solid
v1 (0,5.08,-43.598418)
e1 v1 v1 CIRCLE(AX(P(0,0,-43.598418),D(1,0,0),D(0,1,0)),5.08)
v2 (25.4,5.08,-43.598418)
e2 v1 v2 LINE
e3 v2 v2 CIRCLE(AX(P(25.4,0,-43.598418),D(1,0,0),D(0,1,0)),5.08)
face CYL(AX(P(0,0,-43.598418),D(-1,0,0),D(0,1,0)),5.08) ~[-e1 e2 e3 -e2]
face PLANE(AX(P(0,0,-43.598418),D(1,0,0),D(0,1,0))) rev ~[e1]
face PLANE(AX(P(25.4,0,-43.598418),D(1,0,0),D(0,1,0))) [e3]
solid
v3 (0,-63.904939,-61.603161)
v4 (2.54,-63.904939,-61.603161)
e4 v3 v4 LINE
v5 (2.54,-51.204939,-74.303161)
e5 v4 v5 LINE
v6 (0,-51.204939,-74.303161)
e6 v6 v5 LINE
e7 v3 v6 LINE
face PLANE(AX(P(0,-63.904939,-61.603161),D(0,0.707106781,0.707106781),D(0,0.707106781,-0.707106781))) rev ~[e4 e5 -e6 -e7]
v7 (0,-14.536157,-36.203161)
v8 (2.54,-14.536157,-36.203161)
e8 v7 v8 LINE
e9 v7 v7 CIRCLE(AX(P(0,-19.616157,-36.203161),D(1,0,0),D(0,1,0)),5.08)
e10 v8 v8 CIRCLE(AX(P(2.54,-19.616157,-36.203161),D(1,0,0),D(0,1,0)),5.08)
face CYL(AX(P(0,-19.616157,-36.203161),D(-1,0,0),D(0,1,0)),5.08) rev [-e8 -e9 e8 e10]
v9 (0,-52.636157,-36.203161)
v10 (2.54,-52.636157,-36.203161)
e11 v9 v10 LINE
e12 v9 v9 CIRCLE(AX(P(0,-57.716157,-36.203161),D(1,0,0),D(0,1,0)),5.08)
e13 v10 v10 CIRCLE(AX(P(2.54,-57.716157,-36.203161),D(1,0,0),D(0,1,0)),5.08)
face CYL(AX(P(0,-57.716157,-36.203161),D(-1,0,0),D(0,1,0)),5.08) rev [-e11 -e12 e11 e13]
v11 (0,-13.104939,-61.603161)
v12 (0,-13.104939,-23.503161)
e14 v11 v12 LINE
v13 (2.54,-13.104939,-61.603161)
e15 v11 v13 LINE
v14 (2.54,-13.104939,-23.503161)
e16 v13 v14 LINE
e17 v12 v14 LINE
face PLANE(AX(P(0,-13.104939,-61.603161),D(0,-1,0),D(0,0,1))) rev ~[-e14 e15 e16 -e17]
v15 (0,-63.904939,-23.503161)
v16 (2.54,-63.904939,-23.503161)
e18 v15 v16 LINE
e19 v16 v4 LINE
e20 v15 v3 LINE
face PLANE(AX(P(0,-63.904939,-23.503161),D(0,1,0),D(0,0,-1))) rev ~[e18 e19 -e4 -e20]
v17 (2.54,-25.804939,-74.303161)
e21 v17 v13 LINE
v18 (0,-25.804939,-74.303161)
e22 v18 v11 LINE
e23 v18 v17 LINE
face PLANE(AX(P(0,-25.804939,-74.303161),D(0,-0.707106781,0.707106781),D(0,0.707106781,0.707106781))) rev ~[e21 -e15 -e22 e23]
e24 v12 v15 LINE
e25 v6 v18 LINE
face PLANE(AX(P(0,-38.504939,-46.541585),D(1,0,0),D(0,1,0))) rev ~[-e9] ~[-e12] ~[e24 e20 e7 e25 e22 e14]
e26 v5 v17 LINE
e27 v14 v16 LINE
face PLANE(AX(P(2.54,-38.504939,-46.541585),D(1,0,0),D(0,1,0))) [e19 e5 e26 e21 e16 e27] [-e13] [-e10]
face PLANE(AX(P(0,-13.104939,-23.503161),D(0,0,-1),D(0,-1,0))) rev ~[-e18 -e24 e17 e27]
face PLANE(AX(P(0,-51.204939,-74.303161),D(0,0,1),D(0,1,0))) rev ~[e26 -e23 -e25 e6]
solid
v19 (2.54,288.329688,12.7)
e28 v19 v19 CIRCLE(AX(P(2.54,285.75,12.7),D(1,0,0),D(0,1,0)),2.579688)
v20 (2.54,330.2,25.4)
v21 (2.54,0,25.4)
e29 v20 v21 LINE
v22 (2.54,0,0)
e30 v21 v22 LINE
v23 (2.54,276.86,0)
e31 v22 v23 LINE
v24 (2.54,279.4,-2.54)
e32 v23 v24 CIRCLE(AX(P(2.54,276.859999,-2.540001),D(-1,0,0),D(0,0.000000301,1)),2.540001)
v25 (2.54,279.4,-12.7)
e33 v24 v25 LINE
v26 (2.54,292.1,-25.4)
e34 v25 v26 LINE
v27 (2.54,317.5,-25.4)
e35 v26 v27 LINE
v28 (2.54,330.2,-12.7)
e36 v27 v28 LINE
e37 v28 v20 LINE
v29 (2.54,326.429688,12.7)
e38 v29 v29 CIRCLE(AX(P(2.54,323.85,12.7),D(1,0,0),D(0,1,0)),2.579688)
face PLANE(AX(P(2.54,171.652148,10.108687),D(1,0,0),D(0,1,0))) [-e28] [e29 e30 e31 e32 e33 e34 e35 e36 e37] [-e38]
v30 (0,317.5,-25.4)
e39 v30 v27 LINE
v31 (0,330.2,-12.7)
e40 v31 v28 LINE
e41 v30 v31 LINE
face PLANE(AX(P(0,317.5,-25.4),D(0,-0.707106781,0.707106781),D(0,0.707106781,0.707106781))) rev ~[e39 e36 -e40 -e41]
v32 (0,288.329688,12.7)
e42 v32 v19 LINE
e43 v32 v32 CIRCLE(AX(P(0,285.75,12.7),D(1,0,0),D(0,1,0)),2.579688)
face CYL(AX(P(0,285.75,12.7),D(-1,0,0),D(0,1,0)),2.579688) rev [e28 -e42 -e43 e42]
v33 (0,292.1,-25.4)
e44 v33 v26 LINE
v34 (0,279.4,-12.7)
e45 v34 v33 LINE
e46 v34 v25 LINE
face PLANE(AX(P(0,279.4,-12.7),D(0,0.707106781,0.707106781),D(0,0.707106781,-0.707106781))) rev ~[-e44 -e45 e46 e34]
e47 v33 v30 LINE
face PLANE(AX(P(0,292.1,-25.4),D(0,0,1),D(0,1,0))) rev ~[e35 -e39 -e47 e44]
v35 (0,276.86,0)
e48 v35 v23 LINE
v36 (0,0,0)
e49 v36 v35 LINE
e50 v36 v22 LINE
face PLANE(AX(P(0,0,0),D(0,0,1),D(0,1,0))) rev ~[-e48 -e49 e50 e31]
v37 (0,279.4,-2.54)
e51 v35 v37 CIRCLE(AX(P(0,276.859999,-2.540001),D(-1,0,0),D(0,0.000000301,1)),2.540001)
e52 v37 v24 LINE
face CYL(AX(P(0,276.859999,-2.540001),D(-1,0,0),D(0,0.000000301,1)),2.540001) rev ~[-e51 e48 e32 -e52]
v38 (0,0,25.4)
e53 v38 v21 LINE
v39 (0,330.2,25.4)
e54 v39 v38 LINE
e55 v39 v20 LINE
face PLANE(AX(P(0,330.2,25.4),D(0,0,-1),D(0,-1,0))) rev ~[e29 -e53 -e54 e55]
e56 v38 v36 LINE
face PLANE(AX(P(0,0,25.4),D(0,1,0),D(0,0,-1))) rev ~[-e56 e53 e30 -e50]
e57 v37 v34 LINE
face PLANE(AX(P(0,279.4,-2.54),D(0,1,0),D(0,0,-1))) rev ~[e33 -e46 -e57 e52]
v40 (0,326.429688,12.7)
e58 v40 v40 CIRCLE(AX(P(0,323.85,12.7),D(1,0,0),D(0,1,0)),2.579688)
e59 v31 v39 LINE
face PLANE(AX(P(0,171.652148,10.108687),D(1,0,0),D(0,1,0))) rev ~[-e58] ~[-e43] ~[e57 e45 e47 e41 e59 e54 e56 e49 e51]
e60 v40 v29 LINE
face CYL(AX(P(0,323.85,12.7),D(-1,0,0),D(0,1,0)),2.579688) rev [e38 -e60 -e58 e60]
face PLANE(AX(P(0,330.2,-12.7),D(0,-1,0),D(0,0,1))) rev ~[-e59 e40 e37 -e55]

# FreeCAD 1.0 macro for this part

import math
import FreeCAD as App
import Part
import Sketcher

V = App.Vector
Q = App.Units.Quantity


def add_polygon(sketch, points):
    """Adds a closed chain of lines whose ends are joined by coincident constraints."""
    first, n = sketch.GeometryCount, len(points)
    for a, b in zip(points, points[1:] + points[:1]):
        sketch.addGeometry(Part.LineSegment(App.Vector(*a, 0), App.Vector(*b, 0)), False)
    for i in range(n):
        sketch.addConstraint(Sketcher.Constraint("Coincident", first + i, 2, first + (i + 1) % n, 1))

doc = App.newDocument("Part")
params = doc.addObject("Spreadsheet::Sheet", "Params")
for row, (alias, value) in enumerate([
    ("sketch1_radius", "0.1 in"),
    ("sketch1_width", "1 in"),
    ("sketch1_width2", "13 in"),
    ("sketch1_diameter", "0.203125 in"),
    ("sketch1_width3", "10.9 in"),
    ("pad1_length", "0.1 in"),
    ("sketch2_diameter", "0.4 in"),
    ("sketch2_width", "2 in"),
    ("sketch2_width2", "1 in"),
    ("sketch2_height", "1.5 in"),
    ("pad2_length", "0.1 in"),
    ("sketch3_diameter", "0.4 in"),
    ("pad3_length", "1 in"),
], start=1):
    params.set(f"A{row}", alias)
    params.set(f"B{row}", "=" + value)
    params.setAlias(f"B{row}", alias)

body = doc.addObject("PartDesign::Body", "Body")

# Sketch on YZ plane
sketch1 = doc.addObject("Sketcher::SketchObject", "Sketch")
body.addObject(sketch1)
sketch1.AttachmentSupport = (doc.YZ_Plane, [""])
sketch1.MapMode = "FlatFace"
sketch1.addGeometry([
    Part.LineSegment(V(0, 25.4, 0), V(0, 0, 0)),  # 0
    Part.LineSegment(V(0, 0, 0), V(276.86, 0, 0)),  # 1
    Part.ArcOfCircle(Part.Circle(V(276.859999, -2.540001, 0), V(0, 0, 1), 2.540001), math.radians(0.000017), math.radians(89.999983)),  # 2
    Part.LineSegment(V(279.4, -2.54, 0), V(279.4, -12.7, 0)),  # 3
    Part.LineSegment(V(279.4, -12.7, 0), V(292.1, -25.4, 0)),  # 4
    Part.LineSegment(V(292.1, -25.4, 0), V(317.5, -25.4, 0)),  # 5
    Part.LineSegment(V(317.5, -25.4, 0), V(330.2, -12.7, 0)),  # 6
    Part.LineSegment(V(330.2, -12.7, 0), V(330.2, 25.4, 0)),  # 7
    Part.LineSegment(V(330.2, 25.4, 0), V(0, 25.4, 0)),  # 8
    Part.Circle(V(285.75, 12.7, 0), V(0, 0, 1), 2.579688),  # 9
    Part.Circle(V(323.85, 12.7, 0), V(0, 0, 1), 2.579688),  # 10
], False)
sketch1.addConstraint([
    Sketcher.Constraint("Coincident", 0, 2, 1, 1),
    Sketcher.Constraint("Tangent", 1, 2, 2, 2),
    Sketcher.Constraint("Tangent", 2, 1, 3, 1),
    Sketcher.Constraint("Coincident", 3, 2, 4, 1),
    Sketcher.Constraint("Coincident", 4, 2, 5, 1),
    Sketcher.Constraint("Coincident", 5, 2, 6, 1),
    Sketcher.Constraint("Coincident", 6, 2, 7, 1),
    Sketcher.Constraint("Coincident", 7, 2, 8, 1),
    Sketcher.Constraint("Coincident", 8, 2, 0, 1),
    Sketcher.Constraint("Vertical", 0),
    Sketcher.Constraint("Horizontal", 1),
    Sketcher.Constraint("Vertical", 3),
    Sketcher.Constraint("Horizontal", 5),
    Sketcher.Constraint("Vertical", 7),
    Sketcher.Constraint("Horizontal", 8),
    Sketcher.Constraint("Coincident", 0, 2, -1, 1),
    Sketcher.Constraint("Equal", 9, 10),
    Sketcher.Constraint("Perpendicular", 4, 6),
    Sketcher.Constraint("Horizontal", 9, 3, 10, 3),
    Sketcher.Constraint("Horizontal", 3, 2, 6, 2),
    Sketcher.Constraint("Equal", 5, 0),
    Sketcher.Constraint("Equal", 4, 6),
    Sketcher.Constraint("Radius", 2, Q("0.1 in")),
    Sketcher.Constraint("DistanceX", 5, 1, 5, 2, Q("1 in")),
    Sketcher.Constraint("DistanceX", 8, 2, 8, 1, Q("13 in")),
    Sketcher.Constraint("Diameter", 9, Q("0.203125 in")),
    Sketcher.Constraint("DistanceX", 1, 1, 1, 2, Q("10.9 in")),
    Sketcher.Constraint("DistanceY", 3, 2, 3, 1, Q("0.4 in")),
    Sketcher.Constraint("DistanceY", 3, 2, 9, 3, Q("1 in")),
    Sketcher.Constraint("DistanceX", 9, 3, 10, 3, Q("1.5 in")),
    Sketcher.Constraint("DistanceX", -1, 1, 9, 3, Q("11.25 in")),
])
sketch1.setExpression("Constraints[22]", "Params.sketch1_radius")
sketch1.setExpression("Constraints[23]", "Params.sketch1_width")
sketch1.setExpression("Constraints[24]", "Params.sketch1_width2")
sketch1.setExpression("Constraints[25]", "Params.sketch1_diameter")
sketch1.setExpression("Constraints[26]", "Params.sketch1_width3")
pad1 = doc.addObject("PartDesign::Pad", "Pad")
body.addObject(pad1)
pad1.Profile = sketch1
pad1.setExpression("Length", "Params.pad1_length")
body2 = doc.addObject("PartDesign::Body", "Body001")

# Sketch on YZ plane
sketch2 = doc.addObject("Sketcher::SketchObject", "Sketch001")
body2.addObject(sketch2)
sketch2.AttachmentSupport = (doc.getObject("YZ_Plane001"), [""])
sketch2.MapMode = "FlatFace"
add_polygon(sketch2, [(-13.104939, -23.503161), (-63.904939, -23.503161), (-63.904939, -61.603161), (-51.204939, -74.303161), (-25.804939, -74.303161), (-13.104939, -61.603161)])  # lines 0-5
sketch2.addGeometry(Part.Circle(V(-57.716157, -36.203161, 0), V(0, 0, 1), 5.08), False)  # 6
sketch2.addGeometry(Part.Circle(V(-19.616157, -36.203161, 0), V(0, 0, 1), 5.08), False)  # 7
sketch2.addConstraint([
    Sketcher.Constraint("Horizontal", 0),
    Sketcher.Constraint("Vertical", 1),
    Sketcher.Constraint("Horizontal", 3),
    Sketcher.Constraint("Vertical", 5),
    Sketcher.Constraint("Equal", 6, 7),
    Sketcher.Constraint("Perpendicular", 2, 4),
    Sketcher.Constraint("Horizontal", 6, 3, 7, 3),
    Sketcher.Constraint("Horizontal", 1, 2, 4, 2),
    Sketcher.Constraint("Equal", 2, 4),
    Sketcher.Constraint("Diameter", 6, Q("0.4 in")),
    Sketcher.Constraint("DistanceX", 0, 2, 0, 1, Q("2 in")),
    Sketcher.Constraint("DistanceX", 3, 1, 3, 2, Q("1 in")),
    Sketcher.Constraint("DistanceY", 1, 2, 1, 1, Q("1.5 in")),
    Sketcher.Constraint("DistanceY", 1, 2, 6, 3, Q("1 in")),
    Sketcher.Constraint("DistanceX", 6, 3, 7, 3, Q("1.5 in")),
    Sketcher.Constraint("DistanceY", 6, 3, -1, 1, 36.203161),
    Sketcher.Constraint("DistanceX", 0, 2, -1, 1, 63.904939),
    Sketcher.Constraint("DistanceX", 0, 2, 6, 3, 6.188782),
])
sketch2.setExpression("Constraints[15]", "Params.sketch2_diameter")
sketch2.setExpression("Constraints[16]", "Params.sketch2_width")
sketch2.setExpression("Constraints[17]", "Params.sketch2_width2")
sketch2.setExpression("Constraints[18]", "Params.sketch2_height")
pad2 = doc.addObject("PartDesign::Pad", "Pad001")
body2.addObject(pad2)
pad2.Profile = sketch2
pad2.setExpression("Length", "Params.pad2_length")
body3 = doc.addObject("PartDesign::Body", "Body002")

# Sketch on YZ plane
sketch3 = doc.addObject("Sketcher::SketchObject", "Sketch002")
body3.addObject(sketch3)
sketch3.AttachmentSupport = (doc.getObject("YZ_Plane002"), [""])
sketch3.MapMode = "FlatFace"
sketch3.addGeometry(Part.Circle(V(0, -43.598418, 0), V(0, 0, 1), 5.08), False)
sketch3.addConstraint([
    Sketcher.Constraint("PointOnObject", 0, 3, -2),
    Sketcher.Constraint("Diameter", 0, Q("0.4 in")),
    Sketcher.Constraint("DistanceY", 0, 3, -1, 1, 43.598418),
])
sketch3.setExpression("Constraints[1]", "Params.sketch3_diameter")
pad3 = doc.addObject("PartDesign::Pad", "Pad002")
body3.addObject(pad3)
pad3.Profile = sketch3
pad3.setExpression("Length", "Params.pad3_length")

doc.recompute()
